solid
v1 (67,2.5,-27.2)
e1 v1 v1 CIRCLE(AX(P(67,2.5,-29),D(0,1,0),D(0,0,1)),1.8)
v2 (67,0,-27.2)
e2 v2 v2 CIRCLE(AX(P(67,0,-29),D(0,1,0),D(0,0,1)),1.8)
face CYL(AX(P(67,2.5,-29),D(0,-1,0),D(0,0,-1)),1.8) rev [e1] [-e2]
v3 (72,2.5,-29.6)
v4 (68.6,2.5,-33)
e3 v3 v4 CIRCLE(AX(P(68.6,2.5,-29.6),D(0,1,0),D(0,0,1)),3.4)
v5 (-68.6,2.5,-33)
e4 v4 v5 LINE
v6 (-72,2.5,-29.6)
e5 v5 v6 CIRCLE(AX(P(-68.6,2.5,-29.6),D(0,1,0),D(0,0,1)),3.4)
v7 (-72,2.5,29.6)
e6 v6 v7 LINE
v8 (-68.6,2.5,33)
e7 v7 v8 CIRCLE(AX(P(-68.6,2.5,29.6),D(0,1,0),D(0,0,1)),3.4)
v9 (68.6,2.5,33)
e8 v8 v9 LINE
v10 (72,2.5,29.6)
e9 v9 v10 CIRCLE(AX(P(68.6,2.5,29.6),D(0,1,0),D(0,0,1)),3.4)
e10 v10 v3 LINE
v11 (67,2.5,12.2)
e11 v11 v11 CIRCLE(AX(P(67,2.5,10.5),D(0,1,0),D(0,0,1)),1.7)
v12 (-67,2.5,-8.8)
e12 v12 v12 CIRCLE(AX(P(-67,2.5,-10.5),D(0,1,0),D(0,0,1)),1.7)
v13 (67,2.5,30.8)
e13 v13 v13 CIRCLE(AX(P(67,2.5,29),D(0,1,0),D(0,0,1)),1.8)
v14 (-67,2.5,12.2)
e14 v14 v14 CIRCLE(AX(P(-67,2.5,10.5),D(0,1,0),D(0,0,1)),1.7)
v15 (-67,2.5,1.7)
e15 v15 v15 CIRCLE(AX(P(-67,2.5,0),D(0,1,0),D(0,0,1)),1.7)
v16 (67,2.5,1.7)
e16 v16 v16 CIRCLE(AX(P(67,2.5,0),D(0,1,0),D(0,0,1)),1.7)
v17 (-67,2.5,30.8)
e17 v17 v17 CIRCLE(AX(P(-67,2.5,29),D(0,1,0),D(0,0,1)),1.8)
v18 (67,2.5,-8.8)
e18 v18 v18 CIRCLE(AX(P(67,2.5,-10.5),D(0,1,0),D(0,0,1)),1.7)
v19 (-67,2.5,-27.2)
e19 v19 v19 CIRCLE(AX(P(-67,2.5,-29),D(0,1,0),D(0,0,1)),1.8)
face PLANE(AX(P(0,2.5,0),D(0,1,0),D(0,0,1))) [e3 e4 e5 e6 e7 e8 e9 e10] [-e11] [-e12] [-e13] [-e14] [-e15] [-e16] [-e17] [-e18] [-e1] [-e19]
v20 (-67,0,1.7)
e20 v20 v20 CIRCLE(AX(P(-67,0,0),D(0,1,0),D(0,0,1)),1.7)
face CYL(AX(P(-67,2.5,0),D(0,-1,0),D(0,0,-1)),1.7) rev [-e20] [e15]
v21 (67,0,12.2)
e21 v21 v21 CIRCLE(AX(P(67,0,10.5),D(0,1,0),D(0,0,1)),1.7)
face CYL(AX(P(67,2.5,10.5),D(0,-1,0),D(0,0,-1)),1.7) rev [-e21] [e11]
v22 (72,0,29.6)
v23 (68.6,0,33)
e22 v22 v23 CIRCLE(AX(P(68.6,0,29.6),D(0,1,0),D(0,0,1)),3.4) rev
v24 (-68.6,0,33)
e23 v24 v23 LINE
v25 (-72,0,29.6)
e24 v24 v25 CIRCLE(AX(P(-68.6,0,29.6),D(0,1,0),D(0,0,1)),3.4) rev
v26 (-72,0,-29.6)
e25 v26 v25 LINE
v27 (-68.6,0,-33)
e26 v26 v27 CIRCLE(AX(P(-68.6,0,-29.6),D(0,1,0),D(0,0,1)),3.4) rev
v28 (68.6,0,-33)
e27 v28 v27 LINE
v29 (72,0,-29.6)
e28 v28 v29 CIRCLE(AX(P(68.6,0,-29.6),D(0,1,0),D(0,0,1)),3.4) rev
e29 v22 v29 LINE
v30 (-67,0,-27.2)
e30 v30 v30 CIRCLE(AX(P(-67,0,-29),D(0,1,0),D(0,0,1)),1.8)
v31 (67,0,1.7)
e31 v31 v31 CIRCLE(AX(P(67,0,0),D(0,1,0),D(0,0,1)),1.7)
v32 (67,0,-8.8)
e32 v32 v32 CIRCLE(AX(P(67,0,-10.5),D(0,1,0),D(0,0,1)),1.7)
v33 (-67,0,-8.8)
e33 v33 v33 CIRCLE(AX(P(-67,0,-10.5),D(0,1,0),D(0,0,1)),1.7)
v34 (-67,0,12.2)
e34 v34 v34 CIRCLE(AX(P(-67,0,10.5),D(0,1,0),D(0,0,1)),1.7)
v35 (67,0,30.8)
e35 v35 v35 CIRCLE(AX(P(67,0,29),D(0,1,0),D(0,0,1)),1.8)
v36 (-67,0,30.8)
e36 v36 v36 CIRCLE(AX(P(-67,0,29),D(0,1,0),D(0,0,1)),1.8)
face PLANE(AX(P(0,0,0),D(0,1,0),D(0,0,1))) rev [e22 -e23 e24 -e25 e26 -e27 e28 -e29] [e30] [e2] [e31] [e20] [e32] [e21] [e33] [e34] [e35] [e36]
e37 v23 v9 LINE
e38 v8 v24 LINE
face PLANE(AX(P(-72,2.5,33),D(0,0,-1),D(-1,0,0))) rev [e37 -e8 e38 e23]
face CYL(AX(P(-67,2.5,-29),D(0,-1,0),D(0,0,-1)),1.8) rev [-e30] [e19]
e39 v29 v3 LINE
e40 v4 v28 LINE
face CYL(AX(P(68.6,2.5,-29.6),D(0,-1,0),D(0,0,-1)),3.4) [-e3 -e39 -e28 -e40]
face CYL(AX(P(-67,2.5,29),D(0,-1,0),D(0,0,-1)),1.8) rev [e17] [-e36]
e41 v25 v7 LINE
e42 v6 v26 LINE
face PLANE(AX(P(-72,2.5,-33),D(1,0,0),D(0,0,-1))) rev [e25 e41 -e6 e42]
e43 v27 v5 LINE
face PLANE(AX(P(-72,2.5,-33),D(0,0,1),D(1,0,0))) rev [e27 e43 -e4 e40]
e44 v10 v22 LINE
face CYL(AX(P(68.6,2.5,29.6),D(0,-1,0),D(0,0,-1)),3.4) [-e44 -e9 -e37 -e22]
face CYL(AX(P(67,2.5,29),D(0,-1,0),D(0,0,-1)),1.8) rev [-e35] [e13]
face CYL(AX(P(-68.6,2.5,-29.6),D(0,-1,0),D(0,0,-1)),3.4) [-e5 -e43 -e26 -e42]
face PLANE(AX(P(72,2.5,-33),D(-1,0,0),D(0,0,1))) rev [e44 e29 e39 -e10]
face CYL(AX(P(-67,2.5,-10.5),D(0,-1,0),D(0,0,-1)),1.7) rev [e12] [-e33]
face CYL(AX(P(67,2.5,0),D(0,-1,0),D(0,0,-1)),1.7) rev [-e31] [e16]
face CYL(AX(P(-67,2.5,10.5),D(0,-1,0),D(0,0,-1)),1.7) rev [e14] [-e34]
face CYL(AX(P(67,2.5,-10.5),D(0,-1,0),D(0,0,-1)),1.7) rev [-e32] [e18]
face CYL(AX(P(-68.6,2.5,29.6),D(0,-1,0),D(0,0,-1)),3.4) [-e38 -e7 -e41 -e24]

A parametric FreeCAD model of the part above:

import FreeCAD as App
import Part
import Sketcher
Q = App.Units.Quantity


def edges_at(feature, points):
    """Names of the edges that pass closest to the given points."""
    edges = feature.Shape.Edges
    near = lambda p: min(range(len(edges)), key=lambda i: edges[i].distToShape(Part.Vertex(*p))[0])
    return sorted({f"Edge{near(p) + 1}" for p in points})


def add_polygon(sketch, points):
    """Adds a closed chain of lines whose ends are joined by coincident constraints."""
    first, n = sketch.GeometryCount, len(points)
    for a, b in zip(points, points[1:] + points[:1]):
        sketch.addGeometry(Part.LineSegment(App.Vector(*a, 0), App.Vector(*b, 0)), False)
    for i in range(n):
        sketch.addConstraint(Sketcher.Constraint("Coincident", first + i, 2, first + (i + 1) % n, 1))

doc = App.newDocument("Part")
body = doc.addObject("PartDesign::Body", "Body")

sketch1 = body.newObject("Sketcher::SketchObject", "Sketch")
sketch1.AttachmentSupport = (doc.getObject("XZ_Plane"), [""])
sketch1.MapMode = "FlatFace"
add_polygon(sketch1, [(-72, -33), (-72, 33), (72, 33), (72, -33)])
sketch1.addGeometry(Part.Circle(App.Vector(-67, 29, 0), App.Vector(0, 0, 1), 1.8), False)
sketch1.addGeometry(Part.Circle(App.Vector(-67, 10.5, 0), App.Vector(0, 0, 1), 1.7), False)
sketch1.addGeometry(Part.Circle(App.Vector(-67, 0, 0), App.Vector(0, 0, 1), 1.7), False)
sketch1.addGeometry(Part.Circle(App.Vector(67, 29, 0), App.Vector(0, 0, 1), 1.8), False)
sketch1.addGeometry(Part.Circle(App.Vector(67, 10.5, 0), App.Vector(0, 0, 1), 1.7), False)
sketch1.addGeometry(Part.Circle(App.Vector(67, 0, 0), App.Vector(0, 0, 1), 1.7), False)
sketch1.addGeometry(Part.Circle(App.Vector(-67, -10.5, 0), App.Vector(0, 0, 1), 1.7), False)
sketch1.addGeometry(Part.Circle(App.Vector(-67, -29, 0), App.Vector(0, 0, 1), 1.8), False)
sketch1.addGeometry(Part.Circle(App.Vector(67, -10.5, 0), App.Vector(0, 0, 1), 1.7), False)
sketch1.addGeometry(Part.Circle(App.Vector(67, -29, 0), App.Vector(0, 0, 1), 1.8), False)
sketch1.addConstraint(Sketcher.Constraint("Vertical", 0))
sketch1.addConstraint(Sketcher.Constraint("Horizontal", 1))
sketch1.addConstraint(Sketcher.Constraint("Vertical", 2))
sketch1.addConstraint(Sketcher.Constraint("Horizontal", 3))
sketch1.addConstraint(Sketcher.Constraint("Equal", 5, 6))
sketch1.addConstraint(Sketcher.Constraint("Equal", 4, 7))
sketch1.addConstraint(Sketcher.Constraint("Equal", 6, 8))
sketch1.addConstraint(Sketcher.Constraint("Equal", 8, 9))
sketch1.addConstraint(Sketcher.Constraint("Equal", 9, 10))
sketch1.addConstraint(Sketcher.Constraint("Equal", 7, 11))
sketch1.addConstraint(Sketcher.Constraint("Equal", 10, 12))
sketch1.addConstraint(Sketcher.Constraint("Equal", 11, 13))
sketch1.addConstraint(Sketcher.Constraint("Symmetric", 6, 3, 9, 3, -1, 1))
sketch1.addConstraint(Sketcher.Constraint("Symmetric", 8, 3, 10, 3, -1, 1))
sketch1.addConstraint(Sketcher.Constraint("Symmetric", 7, 3, 11, 3, -1, 1))
sketch1.addConstraint(Sketcher.Constraint("Symmetric", 5, 3, 12, 3, -1, 1))
sketch1.addConstraint(Sketcher.Constraint("Symmetric", 4, 3, 13, 3, -1, 1))
sketch1.addConstraint(Sketcher.Constraint("Symmetric", 0, 2, 2, 2, -1, 1))
sketch1.addConstraint(Sketcher.Constraint("Symmetric", 4, 3, 7, 3, -2))
sketch1.addConstraint(Sketcher.Constraint("Symmetric", 5, 3, 8, 3, -2))
sketch1.addConstraint(Sketcher.Constraint("PointOnObject", 6, 3, -1))
sketch1.addConstraint(Sketcher.Constraint("Vertical", 4, 3, 5, 3))
sketch1.addConstraint(Sketcher.Constraint("Vertical", 5, 3, 6, 3))
sketch1.addConstraint(Sketcher.Constraint("Diameter", 4, Q("3.6 mm")))
sketch1.addConstraint(Sketcher.Constraint("Diameter", 5, Q("3.4 mm")))
sketch1.addConstraint(Sketcher.Constraint("DistanceX", 1, 1, 1, 2, Q("144 mm")))
sketch1.addConstraint(Sketcher.Constraint("DistanceY", 0, 1, 0, 2, Q("66 mm")))
sketch1.addConstraint(Sketcher.Constraint("DistanceX", 4, 3, -1, 1, Q("67 mm")))
sketch1.addConstraint(Sketcher.Constraint("DistanceY", -1, 1, 4, 3, Q("29 mm")))
sketch1.addConstraint(Sketcher.Constraint("DistanceY", 10, 3, 5, 3, Q("21 mm")))
pad1 = body.newObject("PartDesign::Pad", "Pad")
pad1.Profile = sketch1
pad1.Length = 2.5
pad1.Reversed = True
doc.recompute()

fillet = body.newObject("PartDesign::Fillet", "Fillet")
fillet.Base = (pad1, edges_at(pad1, [
    (72, 1.25, 33),
    (-72, 1.25, 33),
    (-72, 1.25, -33),
    (72, 1.25, -33),
]))
fillet.Radius = 3.4

doc.recompute()
